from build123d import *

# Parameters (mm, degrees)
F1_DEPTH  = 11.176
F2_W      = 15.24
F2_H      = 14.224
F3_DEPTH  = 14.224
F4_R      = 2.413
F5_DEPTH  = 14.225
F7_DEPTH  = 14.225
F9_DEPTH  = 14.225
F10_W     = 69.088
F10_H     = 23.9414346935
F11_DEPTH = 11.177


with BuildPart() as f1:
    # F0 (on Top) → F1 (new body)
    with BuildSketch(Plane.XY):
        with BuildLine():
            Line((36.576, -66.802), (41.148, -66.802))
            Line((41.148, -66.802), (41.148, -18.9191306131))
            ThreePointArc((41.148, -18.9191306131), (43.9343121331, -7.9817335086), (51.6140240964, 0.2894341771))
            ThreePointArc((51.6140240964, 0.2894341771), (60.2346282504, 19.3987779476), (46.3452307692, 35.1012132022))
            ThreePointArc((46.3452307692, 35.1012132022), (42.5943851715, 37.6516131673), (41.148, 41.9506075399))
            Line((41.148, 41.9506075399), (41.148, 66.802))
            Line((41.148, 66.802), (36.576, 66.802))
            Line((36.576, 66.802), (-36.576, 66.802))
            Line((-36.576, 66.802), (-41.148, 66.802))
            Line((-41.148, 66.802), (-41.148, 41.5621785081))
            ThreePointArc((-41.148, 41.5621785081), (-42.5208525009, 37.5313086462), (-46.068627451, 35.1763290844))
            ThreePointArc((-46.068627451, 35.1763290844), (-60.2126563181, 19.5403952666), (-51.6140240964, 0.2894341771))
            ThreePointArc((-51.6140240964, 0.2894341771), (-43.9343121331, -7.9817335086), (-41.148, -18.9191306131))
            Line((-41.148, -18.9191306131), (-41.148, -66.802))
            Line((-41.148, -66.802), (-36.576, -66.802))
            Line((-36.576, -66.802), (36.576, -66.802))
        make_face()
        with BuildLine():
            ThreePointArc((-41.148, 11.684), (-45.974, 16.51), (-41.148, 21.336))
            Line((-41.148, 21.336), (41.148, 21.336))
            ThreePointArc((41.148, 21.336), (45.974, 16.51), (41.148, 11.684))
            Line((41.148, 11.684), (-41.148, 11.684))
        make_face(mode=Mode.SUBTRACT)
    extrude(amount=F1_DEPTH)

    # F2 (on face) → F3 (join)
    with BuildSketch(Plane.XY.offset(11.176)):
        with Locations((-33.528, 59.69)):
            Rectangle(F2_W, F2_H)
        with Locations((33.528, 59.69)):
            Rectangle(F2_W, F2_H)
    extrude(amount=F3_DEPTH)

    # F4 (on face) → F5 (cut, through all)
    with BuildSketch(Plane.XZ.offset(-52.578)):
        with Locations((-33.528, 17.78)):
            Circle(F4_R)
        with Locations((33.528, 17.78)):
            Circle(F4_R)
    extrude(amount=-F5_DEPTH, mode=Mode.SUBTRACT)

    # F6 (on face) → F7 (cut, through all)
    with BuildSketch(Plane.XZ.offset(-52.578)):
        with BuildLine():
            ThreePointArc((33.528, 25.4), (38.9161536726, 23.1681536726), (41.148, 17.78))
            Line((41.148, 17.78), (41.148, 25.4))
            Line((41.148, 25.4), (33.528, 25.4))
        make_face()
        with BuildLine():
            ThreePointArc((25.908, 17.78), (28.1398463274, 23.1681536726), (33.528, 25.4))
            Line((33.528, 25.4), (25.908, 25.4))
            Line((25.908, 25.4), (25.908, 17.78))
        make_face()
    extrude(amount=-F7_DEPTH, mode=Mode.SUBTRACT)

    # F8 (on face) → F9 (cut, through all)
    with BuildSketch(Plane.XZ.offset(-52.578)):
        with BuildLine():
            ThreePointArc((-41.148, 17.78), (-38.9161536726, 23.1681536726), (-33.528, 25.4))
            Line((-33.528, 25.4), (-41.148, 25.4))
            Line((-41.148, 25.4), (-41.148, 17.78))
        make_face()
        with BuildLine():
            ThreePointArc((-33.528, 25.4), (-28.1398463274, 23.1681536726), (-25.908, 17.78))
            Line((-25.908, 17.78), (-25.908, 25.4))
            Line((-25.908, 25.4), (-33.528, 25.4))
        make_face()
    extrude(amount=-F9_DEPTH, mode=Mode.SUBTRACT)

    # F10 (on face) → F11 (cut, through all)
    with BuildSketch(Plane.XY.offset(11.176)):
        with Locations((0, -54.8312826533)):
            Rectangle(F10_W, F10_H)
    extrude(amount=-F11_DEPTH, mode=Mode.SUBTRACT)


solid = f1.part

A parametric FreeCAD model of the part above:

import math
import FreeCAD as App
import Part
import Sketcher

V = App.Vector
Q = App.Units.Quantity


def add_polygon(sketch, points):
    """Adds a closed chain of lines whose ends are joined by coincident constraints."""
    first, n = sketch.GeometryCount, len(points)
    for a, b in zip(points, points[1:] + points[:1]):
        sketch.addGeometry(Part.LineSegment(App.Vector(*a, 0), App.Vector(*b, 0)), False)
    for i in range(n):
        sketch.addConstraint(Sketcher.Constraint("Coincident", first + i, 2, first + (i + 1) % n, 1))

doc = App.newDocument("Part")
body = doc.addObject("PartDesign::Body", "Body")

# Sketch on XY plane
sketch1 = body.newObject("Sketcher::SketchObject", "Sketch")
sketch1.AttachmentSupport = (doc.getObject("XY_Plane"), [""])
sketch1.MapMode = "FlatFace"
sketch1.addGeometry(Part.LineSegment(V(41.1, -66.8, 0), V(41.1, -18.9, 0)), False)
sketch1.addGeometry(Part.ArcOfCircle(Part.Circle(V(64, -18.9, 0), V(0, 0, 1), 22.9), math.radians(123), math.radians(180)), False)
sketch1.addGeometry(Part.ArcOfCircle(Part.Circle(V(41.1, 16.5, 0), V(0, 0, 1), 19.3), math.radians(-57), math.radians(74)), False)
sketch1.addGeometry(Part.ArcOfCircle(Part.Circle(V(48.3, 42, 0), V(0, 0, 1), 7.1), math.radians(180), math.radians(254)), False)
sketch1.addGeometry(Part.LineSegment(V(41.1, 42, 0), V(41.1, 66.8, 0)), False)
sketch1.addGeometry(Part.LineSegment(V(41.1, 66.8, 0), V(-41.1, 66.8, 0)), False)
sketch1.addGeometry(Part.LineSegment(V(-41.1, 66.8, 0), V(-41.1, 41.6, 0)), False)
sketch1.addGeometry(Part.ArcOfCircle(Part.Circle(V(-47.8, 41.6, 0), V(0, 0, 1), 6.6), math.radians(-75), math.radians(0)), False)
sketch1.addGeometry(Part.ArcOfCircle(Part.Circle(V(-41.1, 16.5, 0), V(0, 0, 1), 19.3), math.radians(105), math.radians(237)), False)
sketch1.addGeometry(Part.ArcOfCircle(Part.Circle(V(-64, -18.9, 0), V(0, 0, 1), 22.9), math.radians(0), math.radians(57)), False)
sketch1.addGeometry(Part.LineSegment(V(-41.1, -18.9, 0), V(-41.1, -66.8, 0)), False)
sketch1.addGeometry(Part.LineSegment(V(-41.1, -66.8, 0), V(41.1, -66.8, 0)), False)
sketch1.addGeometry(Part.LineSegment(V(41.1, 11.7, 0), V(-41.1, 11.7, 0)), False)
sketch1.addGeometry(Part.ArcOfCircle(Part.Circle(V(-41.1, 16.5, 0), V(0, 0, 1), 4.8), math.radians(90), math.radians(270)), False)
sketch1.addGeometry(Part.LineSegment(V(-41.1, 21.3, 0), V(41.1, 21.3, 0)), False)
sketch1.addGeometry(Part.ArcOfCircle(Part.Circle(V(41.1, 16.5, 0), V(0, 0, 1), 4.8), math.radians(-90), math.radians(90)), False)
sketch1.addConstraint(Sketcher.Constraint("Tangent", 0, 2, 1, 2))
sketch1.addConstraint(Sketcher.Constraint("Tangent", 1, 1, 2, 1))
sketch1.addConstraint(Sketcher.Constraint("Tangent", 2, 2, 3, 2))
sketch1.addConstraint(Sketcher.Constraint("Tangent", 3, 1, 4, 1))
sketch1.addConstraint(Sketcher.Constraint("Coincident", 4, 2, 5, 1))
sketch1.addConstraint(Sketcher.Constraint("Coincident", 5, 2, 6, 1))
sketch1.addConstraint(Sketcher.Constraint("Tangent", 6, 2, 7, 2))
sketch1.addConstraint(Sketcher.Constraint("Tangent", 7, 1, 8, 1))
sketch1.addConstraint(Sketcher.Constraint("Tangent", 8, 2, 9, 2))
sketch1.addConstraint(Sketcher.Constraint("Tangent", 9, 1, 10, 1))
sketch1.addConstraint(Sketcher.Constraint("Coincident", 10, 2, 11, 1))
sketch1.addConstraint(Sketcher.Constraint("Coincident", 11, 2, 0, 1))
sketch1.addConstraint(Sketcher.Constraint("Tangent", 12, 2, 13, 2))
sketch1.addConstraint(Sketcher.Constraint("Tangent", 13, 1, 14, 1))
sketch1.addConstraint(Sketcher.Constraint("Tangent", 14, 2, 15, 2))
sketch1.addConstraint(Sketcher.Constraint("Tangent", 15, 1, 12, 1))
sketch1.addConstraint(Sketcher.Constraint("Vertical", 0))
sketch1.addConstraint(Sketcher.Constraint("Vertical", 4))
sketch1.addConstraint(Sketcher.Constraint("Horizontal", 5))
sketch1.addConstraint(Sketcher.Constraint("Vertical", 6))
sketch1.addConstraint(Sketcher.Constraint("Vertical", 10))
sketch1.addConstraint(Sketcher.Constraint("Horizontal", 11))
sketch1.addConstraint(Sketcher.Constraint("Horizontal", 12))
sketch1.addConstraint(Sketcher.Constraint("Horizontal", 14))
sketch1.addConstraint(Sketcher.Constraint("Coincident", 13, 3, 8, 3))
sketch1.addConstraint(Sketcher.Constraint("Coincident", 15, 3, 2, 3))
sketch1.addConstraint(Sketcher.Constraint("Equal", 2, 8))
sketch1.addConstraint(Sketcher.Constraint("Equal", 1, 9))
sketch1.addConstraint(Sketcher.Constraint("Symmetric", 4, 2, 10, 2, -1, 1))
sketch1.addConstraint(Sketcher.Constraint("Symmetric", 1, 3, 9, 3, -2))
sketch1.addConstraint(Sketcher.Constraint("Vertical", 15, 3, 0, 2))
sketch1.addConstraint(Sketcher.Constraint("Vertical", 13, 3, 5, 2))
sketch1.addConstraint(Sketcher.Constraint("Radius", 1, Q("0.9 in")))
sketch1.addConstraint(Sketcher.Constraint("Radius", 2, Q("0.76 in")))
sketch1.addConstraint(Sketcher.Constraint("Radius", 3, Q("0.28 in")))
sketch1.addConstraint(Sketcher.Constraint("Radius", 7, Q("0.26 in")))
sketch1.addConstraint(Sketcher.Constraint("Radius", 13, Q("0.19 in")))
sketch1.addConstraint(Sketcher.Constraint("DistanceX", 5, 2, 5, 1, Q("3.24 in")))
sketch1.addConstraint(Sketcher.Constraint("DistanceY", -1, 1, 2, 3, Q("0.65 in")))
sketch1.addConstraint(Sketcher.Constraint("DistanceY", -1, 1, 4, 2, Q("2.63 in")))
pad1 = body.newObject("PartDesign::Pad", "Pad")
pad1.Profile = sketch1
pad1.Length = Q("0.44 in")

# Sketch on XY plane
sketch2 = body.newObject("Sketcher::SketchObject", "Sketch001")
sketch2.AttachmentSupport = (doc.getObject("XY_Plane"), [""])
sketch2.MapMode = "FlatFace"
sketch2.AttachmentOffset = App.Placement(V(0, 0, 0.44 * 25.4), App.Rotation())
add_polygon(sketch2, [(-41, 67), (-41, 53), (-26, 53), (-26, 67)])  # lines 0-3
add_polygon(sketch2, [(26, 67), (26, 53), (41, 53), (41, 67)])  # lines 4-7
sketch2.addConstraint(Sketcher.Constraint("Vertical", 0))
sketch2.addConstraint(Sketcher.Constraint("Horizontal", 1))
sketch2.addConstraint(Sketcher.Constraint("Vertical", 2))
sketch2.addConstraint(Sketcher.Constraint("Horizontal", 3))
sketch2.addConstraint(Sketcher.Constraint("Vertical", 4))
sketch2.addConstraint(Sketcher.Constraint("Horizontal", 5))
sketch2.addConstraint(Sketcher.Constraint("Vertical", 6))
sketch2.addConstraint(Sketcher.Constraint("Horizontal", 7))
sketch2.addConstraint(Sketcher.Constraint("Symmetric", 1, 2, 4, 2, -2))
sketch2.addConstraint(Sketcher.Constraint("Symmetric", 3, 2, 6, 2, -2))
sketch2.addConstraint(Sketcher.Constraint("DistanceX", 1, 1, 1, 2, Q("0.6 in")))
sketch2.addConstraint(Sketcher.Constraint("DistanceY", 0, 2, 0, 1, Q("0.56 in")))
sketch2.addConstraint(Sketcher.Constraint("DistanceX", 0, 2, -1, 1, Q("1.62 in")))
sketch2.addConstraint(Sketcher.Constraint("DistanceY", -1, 1, 0, 2, Q("2.07 in")))
pad2 = body.newObject("PartDesign::Pad", "Pad001")
pad2.Profile = sketch2
pad2.Length = Q("0.56 in")

# Sketch on XZ plane
sketch3 = body.newObject("Sketcher::SketchObject", "Sketch002")
sketch3.AttachmentSupport = (doc.getObject("XZ_Plane"), [""])
sketch3.MapMode = "FlatFace"
sketch3.AttachmentOffset = App.Placement(V(0, 0, -2.07 * 25.4), App.Rotation())
sketch3.addGeometry(Part.Circle(V(-33.5, 17.8, 0), V(0, 0, 1), 2.4), False)
sketch3.addGeometry(Part.Circle(V(33.5, 17.8, 0), V(0, 0, 1), 2.4), False)
sketch3.addConstraint(Sketcher.Constraint("Equal", 0, 1))
sketch3.addConstraint(Sketcher.Constraint("Symmetric", 0, 3, 1, 3, -2))
sketch3.addConstraint(Sketcher.Constraint("Diameter", 0, Q("0.19 in")))
sketch3.addConstraint(Sketcher.Constraint("DistanceY", -1, 1, 0, 3, Q("0.7 in")))
sketch3.addConstraint(Sketcher.Constraint("DistanceX", 0, 3, -1, 1, Q("1.32 in")))
pocket1 = body.newObject("PartDesign::Pocket", "Pocket")
pocket1.Profile = sketch3
pocket1.Type = "ThroughAll"

# Sketch on XZ plane
sketch4 = body.newObject("Sketcher::SketchObject", "Sketch003")
sketch4.AttachmentSupport = (doc.getObject("XZ_Plane"), [""])
sketch4.MapMode = "FlatFace"
sketch4.AttachmentOffset = App.Placement(V(0, 0, -2.07 * 25.4), App.Rotation())
sketch4.addGeometry(Part.ArcOfCircle(Part.Circle(V(34, 18, 0), V(0, 0, 1), 8), math.radians(0), math.radians(90)), False)
sketch4.addGeometry(Part.LineSegment(V(41, 18, 0), V(41, 25, 0)), False)
sketch4.addGeometry(Part.LineSegment(V(41, 25, 0), V(34, 25, 0)), False)
sketch4.addGeometry(Part.ArcOfCircle(Part.Circle(V(34, 18, 0), V(0, 0, 1), 8), math.radians(90), math.radians(180)), False)
sketch4.addGeometry(Part.LineSegment(V(34, 25, 0), V(26, 25, 0)), False)
sketch4.addGeometry(Part.LineSegment(V(26, 25, 0), V(26, 18, 0)), False)
sketch4.addConstraint(Sketcher.Constraint("Tangent", 0, 1, 1, 1))
sketch4.addConstraint(Sketcher.Constraint("Coincident", 1, 2, 2, 1))
sketch4.addConstraint(Sketcher.Constraint("Tangent", 2, 2, 0, 2))
sketch4.addConstraint(Sketcher.Constraint("Tangent", 3, 1, 4, 1))
sketch4.addConstraint(Sketcher.Constraint("Coincident", 4, 2, 5, 1))
sketch4.addConstraint(Sketcher.Constraint("Tangent", 5, 2, 3, 2))
sketch4.addConstraint(Sketcher.Constraint("Vertical", 1))
sketch4.addConstraint(Sketcher.Constraint("Horizontal", 2))
sketch4.addConstraint(Sketcher.Constraint("Horizontal", 4))
sketch4.addConstraint(Sketcher.Constraint("Vertical", 5))
sketch4.addConstraint(Sketcher.Constraint("Coincident", 3, 3, 0, 3))
sketch4.addConstraint(Sketcher.Constraint("Equal", 0, 3))
sketch4.addConstraint(Sketcher.Constraint("Radius", 0, Q("0.3 in")))
sketch4.addConstraint(Sketcher.Constraint("DistanceY", -1, 1, 1, 2, Q("1 in")))
sketch4.addConstraint(Sketcher.Constraint("DistanceX", -1, 1, 0, 3, Q("1.32 in")))
pocket2 = body.newObject("PartDesign::Pocket", "Pocket001")
pocket2.Profile = sketch4
pocket2.Type = "ThroughAll"

# Sketch on XZ plane
sketch5 = body.newObject("Sketcher::SketchObject", "Sketch004")
sketch5.AttachmentSupport = (doc.getObject("XZ_Plane"), [""])
sketch5.MapMode = "FlatFace"
sketch5.AttachmentOffset = App.Placement(V(0, 0, -2.07 * 25.4), App.Rotation())
sketch5.addGeometry(Part.ArcOfCircle(Part.Circle(V(-34, 18, 0), V(0, 0, 1), 8), math.radians(90), math.radians(180)), False)
sketch5.addGeometry(Part.LineSegment(V(-34, 25, 0), V(-41, 25, 0)), False)
sketch5.addGeometry(Part.LineSegment(V(-41, 25, 0), V(-41, 18, 0)), False)
sketch5.addGeometry(Part.ArcOfCircle(Part.Circle(V(-34, 18, 0), V(0, 0, 1), 8), math.radians(0), math.radians(90)), False)
sketch5.addGeometry(Part.LineSegment(V(-26, 18, 0), V(-26, 25, 0)), False)
sketch5.addGeometry(Part.LineSegment(V(-26, 25, 0), V(-34, 25, 0)), False)
sketch5.addConstraint(Sketcher.Constraint("Tangent", 0, 1, 1, 1))
sketch5.addConstraint(Sketcher.Constraint("Coincident", 1, 2, 2, 1))
sketch5.addConstraint(Sketcher.Constraint("Tangent", 2, 2, 0, 2))
sketch5.addConstraint(Sketcher.Constraint("Tangent", 3, 1, 4, 1))
sketch5.addConstraint(Sketcher.Constraint("Coincident", 4, 2, 5, 1))
sketch5.addConstraint(Sketcher.Constraint("Tangent", 5, 2, 3, 2))
sketch5.addConstraint(Sketcher.Constraint("Horizontal", 1))
sketch5.addConstraint(Sketcher.Constraint("Vertical", 2))
sketch5.addConstraint(Sketcher.Constraint("Vertical", 4))
sketch5.addConstraint(Sketcher.Constraint("Horizontal", 5))
sketch5.addConstraint(Sketcher.Constraint("Coincident", 3, 3, 0, 3))
sketch5.addConstraint(Sketcher.Constraint("Equal", 0, 3))
sketch5.addConstraint(Sketcher.Constraint("Radius", 0, Q("0.3 in")))
sketch5.addConstraint(Sketcher.Constraint("DistanceY", -1, 1, 0, 1, Q("1 in")))
sketch5.addConstraint(Sketcher.Constraint("DistanceX", 0, 3, -1, 1, Q("1.32 in")))
pocket3 = body.newObject("PartDesign::Pocket", "Pocket002")
pocket3.Profile = sketch5
pocket3.Type = "ThroughAll"

# Sketch on XY plane
sketch6 = body.newObject("Sketcher::SketchObject", "Sketch005")
sketch6.AttachmentSupport = (doc.getObject("XY_Plane"), [""])
sketch6.MapMode = "FlatFace"
sketch6.AttachmentOffset = App.Placement(V(0, 0, 0.44 * 25.4), App.Rotation())
add_polygon(sketch6, [(-35, -43), (-35, -67), (35, -67), (35, -43)])  # lines 0-3
sketch6.addConstraint(Sketcher.Constraint("Vertical", 0))
sketch6.addConstraint(Sketcher.Constraint("Horizontal", 1))
sketch6.addConstraint(Sketcher.Constraint("Vertical", 2))
sketch6.addConstraint(Sketcher.Constraint("Horizontal", 3))
sketch6.addConstraint(Sketcher.Constraint("DistanceX", 1, 1, 1, 2, Q("2.72 in")))
sketch6.addConstraint(Sketcher.Constraint("DistanceX", 0, 2, -1, 1, Q("1.36 in")))
sketch6.addConstraint(Sketcher.Constraint("DistanceY", 0, 2, -1, 1, Q("2.63 in")))
sketch6.addConstraint(Sketcher.Constraint("DistanceY", 0, 2, 0, 1, 23.941435))
pocket4 = body.newObject("PartDesign::Pocket", "Pocket003")
pocket4.Profile = sketch6
pocket4.Type = "ThroughAll"

doc.recompute()
